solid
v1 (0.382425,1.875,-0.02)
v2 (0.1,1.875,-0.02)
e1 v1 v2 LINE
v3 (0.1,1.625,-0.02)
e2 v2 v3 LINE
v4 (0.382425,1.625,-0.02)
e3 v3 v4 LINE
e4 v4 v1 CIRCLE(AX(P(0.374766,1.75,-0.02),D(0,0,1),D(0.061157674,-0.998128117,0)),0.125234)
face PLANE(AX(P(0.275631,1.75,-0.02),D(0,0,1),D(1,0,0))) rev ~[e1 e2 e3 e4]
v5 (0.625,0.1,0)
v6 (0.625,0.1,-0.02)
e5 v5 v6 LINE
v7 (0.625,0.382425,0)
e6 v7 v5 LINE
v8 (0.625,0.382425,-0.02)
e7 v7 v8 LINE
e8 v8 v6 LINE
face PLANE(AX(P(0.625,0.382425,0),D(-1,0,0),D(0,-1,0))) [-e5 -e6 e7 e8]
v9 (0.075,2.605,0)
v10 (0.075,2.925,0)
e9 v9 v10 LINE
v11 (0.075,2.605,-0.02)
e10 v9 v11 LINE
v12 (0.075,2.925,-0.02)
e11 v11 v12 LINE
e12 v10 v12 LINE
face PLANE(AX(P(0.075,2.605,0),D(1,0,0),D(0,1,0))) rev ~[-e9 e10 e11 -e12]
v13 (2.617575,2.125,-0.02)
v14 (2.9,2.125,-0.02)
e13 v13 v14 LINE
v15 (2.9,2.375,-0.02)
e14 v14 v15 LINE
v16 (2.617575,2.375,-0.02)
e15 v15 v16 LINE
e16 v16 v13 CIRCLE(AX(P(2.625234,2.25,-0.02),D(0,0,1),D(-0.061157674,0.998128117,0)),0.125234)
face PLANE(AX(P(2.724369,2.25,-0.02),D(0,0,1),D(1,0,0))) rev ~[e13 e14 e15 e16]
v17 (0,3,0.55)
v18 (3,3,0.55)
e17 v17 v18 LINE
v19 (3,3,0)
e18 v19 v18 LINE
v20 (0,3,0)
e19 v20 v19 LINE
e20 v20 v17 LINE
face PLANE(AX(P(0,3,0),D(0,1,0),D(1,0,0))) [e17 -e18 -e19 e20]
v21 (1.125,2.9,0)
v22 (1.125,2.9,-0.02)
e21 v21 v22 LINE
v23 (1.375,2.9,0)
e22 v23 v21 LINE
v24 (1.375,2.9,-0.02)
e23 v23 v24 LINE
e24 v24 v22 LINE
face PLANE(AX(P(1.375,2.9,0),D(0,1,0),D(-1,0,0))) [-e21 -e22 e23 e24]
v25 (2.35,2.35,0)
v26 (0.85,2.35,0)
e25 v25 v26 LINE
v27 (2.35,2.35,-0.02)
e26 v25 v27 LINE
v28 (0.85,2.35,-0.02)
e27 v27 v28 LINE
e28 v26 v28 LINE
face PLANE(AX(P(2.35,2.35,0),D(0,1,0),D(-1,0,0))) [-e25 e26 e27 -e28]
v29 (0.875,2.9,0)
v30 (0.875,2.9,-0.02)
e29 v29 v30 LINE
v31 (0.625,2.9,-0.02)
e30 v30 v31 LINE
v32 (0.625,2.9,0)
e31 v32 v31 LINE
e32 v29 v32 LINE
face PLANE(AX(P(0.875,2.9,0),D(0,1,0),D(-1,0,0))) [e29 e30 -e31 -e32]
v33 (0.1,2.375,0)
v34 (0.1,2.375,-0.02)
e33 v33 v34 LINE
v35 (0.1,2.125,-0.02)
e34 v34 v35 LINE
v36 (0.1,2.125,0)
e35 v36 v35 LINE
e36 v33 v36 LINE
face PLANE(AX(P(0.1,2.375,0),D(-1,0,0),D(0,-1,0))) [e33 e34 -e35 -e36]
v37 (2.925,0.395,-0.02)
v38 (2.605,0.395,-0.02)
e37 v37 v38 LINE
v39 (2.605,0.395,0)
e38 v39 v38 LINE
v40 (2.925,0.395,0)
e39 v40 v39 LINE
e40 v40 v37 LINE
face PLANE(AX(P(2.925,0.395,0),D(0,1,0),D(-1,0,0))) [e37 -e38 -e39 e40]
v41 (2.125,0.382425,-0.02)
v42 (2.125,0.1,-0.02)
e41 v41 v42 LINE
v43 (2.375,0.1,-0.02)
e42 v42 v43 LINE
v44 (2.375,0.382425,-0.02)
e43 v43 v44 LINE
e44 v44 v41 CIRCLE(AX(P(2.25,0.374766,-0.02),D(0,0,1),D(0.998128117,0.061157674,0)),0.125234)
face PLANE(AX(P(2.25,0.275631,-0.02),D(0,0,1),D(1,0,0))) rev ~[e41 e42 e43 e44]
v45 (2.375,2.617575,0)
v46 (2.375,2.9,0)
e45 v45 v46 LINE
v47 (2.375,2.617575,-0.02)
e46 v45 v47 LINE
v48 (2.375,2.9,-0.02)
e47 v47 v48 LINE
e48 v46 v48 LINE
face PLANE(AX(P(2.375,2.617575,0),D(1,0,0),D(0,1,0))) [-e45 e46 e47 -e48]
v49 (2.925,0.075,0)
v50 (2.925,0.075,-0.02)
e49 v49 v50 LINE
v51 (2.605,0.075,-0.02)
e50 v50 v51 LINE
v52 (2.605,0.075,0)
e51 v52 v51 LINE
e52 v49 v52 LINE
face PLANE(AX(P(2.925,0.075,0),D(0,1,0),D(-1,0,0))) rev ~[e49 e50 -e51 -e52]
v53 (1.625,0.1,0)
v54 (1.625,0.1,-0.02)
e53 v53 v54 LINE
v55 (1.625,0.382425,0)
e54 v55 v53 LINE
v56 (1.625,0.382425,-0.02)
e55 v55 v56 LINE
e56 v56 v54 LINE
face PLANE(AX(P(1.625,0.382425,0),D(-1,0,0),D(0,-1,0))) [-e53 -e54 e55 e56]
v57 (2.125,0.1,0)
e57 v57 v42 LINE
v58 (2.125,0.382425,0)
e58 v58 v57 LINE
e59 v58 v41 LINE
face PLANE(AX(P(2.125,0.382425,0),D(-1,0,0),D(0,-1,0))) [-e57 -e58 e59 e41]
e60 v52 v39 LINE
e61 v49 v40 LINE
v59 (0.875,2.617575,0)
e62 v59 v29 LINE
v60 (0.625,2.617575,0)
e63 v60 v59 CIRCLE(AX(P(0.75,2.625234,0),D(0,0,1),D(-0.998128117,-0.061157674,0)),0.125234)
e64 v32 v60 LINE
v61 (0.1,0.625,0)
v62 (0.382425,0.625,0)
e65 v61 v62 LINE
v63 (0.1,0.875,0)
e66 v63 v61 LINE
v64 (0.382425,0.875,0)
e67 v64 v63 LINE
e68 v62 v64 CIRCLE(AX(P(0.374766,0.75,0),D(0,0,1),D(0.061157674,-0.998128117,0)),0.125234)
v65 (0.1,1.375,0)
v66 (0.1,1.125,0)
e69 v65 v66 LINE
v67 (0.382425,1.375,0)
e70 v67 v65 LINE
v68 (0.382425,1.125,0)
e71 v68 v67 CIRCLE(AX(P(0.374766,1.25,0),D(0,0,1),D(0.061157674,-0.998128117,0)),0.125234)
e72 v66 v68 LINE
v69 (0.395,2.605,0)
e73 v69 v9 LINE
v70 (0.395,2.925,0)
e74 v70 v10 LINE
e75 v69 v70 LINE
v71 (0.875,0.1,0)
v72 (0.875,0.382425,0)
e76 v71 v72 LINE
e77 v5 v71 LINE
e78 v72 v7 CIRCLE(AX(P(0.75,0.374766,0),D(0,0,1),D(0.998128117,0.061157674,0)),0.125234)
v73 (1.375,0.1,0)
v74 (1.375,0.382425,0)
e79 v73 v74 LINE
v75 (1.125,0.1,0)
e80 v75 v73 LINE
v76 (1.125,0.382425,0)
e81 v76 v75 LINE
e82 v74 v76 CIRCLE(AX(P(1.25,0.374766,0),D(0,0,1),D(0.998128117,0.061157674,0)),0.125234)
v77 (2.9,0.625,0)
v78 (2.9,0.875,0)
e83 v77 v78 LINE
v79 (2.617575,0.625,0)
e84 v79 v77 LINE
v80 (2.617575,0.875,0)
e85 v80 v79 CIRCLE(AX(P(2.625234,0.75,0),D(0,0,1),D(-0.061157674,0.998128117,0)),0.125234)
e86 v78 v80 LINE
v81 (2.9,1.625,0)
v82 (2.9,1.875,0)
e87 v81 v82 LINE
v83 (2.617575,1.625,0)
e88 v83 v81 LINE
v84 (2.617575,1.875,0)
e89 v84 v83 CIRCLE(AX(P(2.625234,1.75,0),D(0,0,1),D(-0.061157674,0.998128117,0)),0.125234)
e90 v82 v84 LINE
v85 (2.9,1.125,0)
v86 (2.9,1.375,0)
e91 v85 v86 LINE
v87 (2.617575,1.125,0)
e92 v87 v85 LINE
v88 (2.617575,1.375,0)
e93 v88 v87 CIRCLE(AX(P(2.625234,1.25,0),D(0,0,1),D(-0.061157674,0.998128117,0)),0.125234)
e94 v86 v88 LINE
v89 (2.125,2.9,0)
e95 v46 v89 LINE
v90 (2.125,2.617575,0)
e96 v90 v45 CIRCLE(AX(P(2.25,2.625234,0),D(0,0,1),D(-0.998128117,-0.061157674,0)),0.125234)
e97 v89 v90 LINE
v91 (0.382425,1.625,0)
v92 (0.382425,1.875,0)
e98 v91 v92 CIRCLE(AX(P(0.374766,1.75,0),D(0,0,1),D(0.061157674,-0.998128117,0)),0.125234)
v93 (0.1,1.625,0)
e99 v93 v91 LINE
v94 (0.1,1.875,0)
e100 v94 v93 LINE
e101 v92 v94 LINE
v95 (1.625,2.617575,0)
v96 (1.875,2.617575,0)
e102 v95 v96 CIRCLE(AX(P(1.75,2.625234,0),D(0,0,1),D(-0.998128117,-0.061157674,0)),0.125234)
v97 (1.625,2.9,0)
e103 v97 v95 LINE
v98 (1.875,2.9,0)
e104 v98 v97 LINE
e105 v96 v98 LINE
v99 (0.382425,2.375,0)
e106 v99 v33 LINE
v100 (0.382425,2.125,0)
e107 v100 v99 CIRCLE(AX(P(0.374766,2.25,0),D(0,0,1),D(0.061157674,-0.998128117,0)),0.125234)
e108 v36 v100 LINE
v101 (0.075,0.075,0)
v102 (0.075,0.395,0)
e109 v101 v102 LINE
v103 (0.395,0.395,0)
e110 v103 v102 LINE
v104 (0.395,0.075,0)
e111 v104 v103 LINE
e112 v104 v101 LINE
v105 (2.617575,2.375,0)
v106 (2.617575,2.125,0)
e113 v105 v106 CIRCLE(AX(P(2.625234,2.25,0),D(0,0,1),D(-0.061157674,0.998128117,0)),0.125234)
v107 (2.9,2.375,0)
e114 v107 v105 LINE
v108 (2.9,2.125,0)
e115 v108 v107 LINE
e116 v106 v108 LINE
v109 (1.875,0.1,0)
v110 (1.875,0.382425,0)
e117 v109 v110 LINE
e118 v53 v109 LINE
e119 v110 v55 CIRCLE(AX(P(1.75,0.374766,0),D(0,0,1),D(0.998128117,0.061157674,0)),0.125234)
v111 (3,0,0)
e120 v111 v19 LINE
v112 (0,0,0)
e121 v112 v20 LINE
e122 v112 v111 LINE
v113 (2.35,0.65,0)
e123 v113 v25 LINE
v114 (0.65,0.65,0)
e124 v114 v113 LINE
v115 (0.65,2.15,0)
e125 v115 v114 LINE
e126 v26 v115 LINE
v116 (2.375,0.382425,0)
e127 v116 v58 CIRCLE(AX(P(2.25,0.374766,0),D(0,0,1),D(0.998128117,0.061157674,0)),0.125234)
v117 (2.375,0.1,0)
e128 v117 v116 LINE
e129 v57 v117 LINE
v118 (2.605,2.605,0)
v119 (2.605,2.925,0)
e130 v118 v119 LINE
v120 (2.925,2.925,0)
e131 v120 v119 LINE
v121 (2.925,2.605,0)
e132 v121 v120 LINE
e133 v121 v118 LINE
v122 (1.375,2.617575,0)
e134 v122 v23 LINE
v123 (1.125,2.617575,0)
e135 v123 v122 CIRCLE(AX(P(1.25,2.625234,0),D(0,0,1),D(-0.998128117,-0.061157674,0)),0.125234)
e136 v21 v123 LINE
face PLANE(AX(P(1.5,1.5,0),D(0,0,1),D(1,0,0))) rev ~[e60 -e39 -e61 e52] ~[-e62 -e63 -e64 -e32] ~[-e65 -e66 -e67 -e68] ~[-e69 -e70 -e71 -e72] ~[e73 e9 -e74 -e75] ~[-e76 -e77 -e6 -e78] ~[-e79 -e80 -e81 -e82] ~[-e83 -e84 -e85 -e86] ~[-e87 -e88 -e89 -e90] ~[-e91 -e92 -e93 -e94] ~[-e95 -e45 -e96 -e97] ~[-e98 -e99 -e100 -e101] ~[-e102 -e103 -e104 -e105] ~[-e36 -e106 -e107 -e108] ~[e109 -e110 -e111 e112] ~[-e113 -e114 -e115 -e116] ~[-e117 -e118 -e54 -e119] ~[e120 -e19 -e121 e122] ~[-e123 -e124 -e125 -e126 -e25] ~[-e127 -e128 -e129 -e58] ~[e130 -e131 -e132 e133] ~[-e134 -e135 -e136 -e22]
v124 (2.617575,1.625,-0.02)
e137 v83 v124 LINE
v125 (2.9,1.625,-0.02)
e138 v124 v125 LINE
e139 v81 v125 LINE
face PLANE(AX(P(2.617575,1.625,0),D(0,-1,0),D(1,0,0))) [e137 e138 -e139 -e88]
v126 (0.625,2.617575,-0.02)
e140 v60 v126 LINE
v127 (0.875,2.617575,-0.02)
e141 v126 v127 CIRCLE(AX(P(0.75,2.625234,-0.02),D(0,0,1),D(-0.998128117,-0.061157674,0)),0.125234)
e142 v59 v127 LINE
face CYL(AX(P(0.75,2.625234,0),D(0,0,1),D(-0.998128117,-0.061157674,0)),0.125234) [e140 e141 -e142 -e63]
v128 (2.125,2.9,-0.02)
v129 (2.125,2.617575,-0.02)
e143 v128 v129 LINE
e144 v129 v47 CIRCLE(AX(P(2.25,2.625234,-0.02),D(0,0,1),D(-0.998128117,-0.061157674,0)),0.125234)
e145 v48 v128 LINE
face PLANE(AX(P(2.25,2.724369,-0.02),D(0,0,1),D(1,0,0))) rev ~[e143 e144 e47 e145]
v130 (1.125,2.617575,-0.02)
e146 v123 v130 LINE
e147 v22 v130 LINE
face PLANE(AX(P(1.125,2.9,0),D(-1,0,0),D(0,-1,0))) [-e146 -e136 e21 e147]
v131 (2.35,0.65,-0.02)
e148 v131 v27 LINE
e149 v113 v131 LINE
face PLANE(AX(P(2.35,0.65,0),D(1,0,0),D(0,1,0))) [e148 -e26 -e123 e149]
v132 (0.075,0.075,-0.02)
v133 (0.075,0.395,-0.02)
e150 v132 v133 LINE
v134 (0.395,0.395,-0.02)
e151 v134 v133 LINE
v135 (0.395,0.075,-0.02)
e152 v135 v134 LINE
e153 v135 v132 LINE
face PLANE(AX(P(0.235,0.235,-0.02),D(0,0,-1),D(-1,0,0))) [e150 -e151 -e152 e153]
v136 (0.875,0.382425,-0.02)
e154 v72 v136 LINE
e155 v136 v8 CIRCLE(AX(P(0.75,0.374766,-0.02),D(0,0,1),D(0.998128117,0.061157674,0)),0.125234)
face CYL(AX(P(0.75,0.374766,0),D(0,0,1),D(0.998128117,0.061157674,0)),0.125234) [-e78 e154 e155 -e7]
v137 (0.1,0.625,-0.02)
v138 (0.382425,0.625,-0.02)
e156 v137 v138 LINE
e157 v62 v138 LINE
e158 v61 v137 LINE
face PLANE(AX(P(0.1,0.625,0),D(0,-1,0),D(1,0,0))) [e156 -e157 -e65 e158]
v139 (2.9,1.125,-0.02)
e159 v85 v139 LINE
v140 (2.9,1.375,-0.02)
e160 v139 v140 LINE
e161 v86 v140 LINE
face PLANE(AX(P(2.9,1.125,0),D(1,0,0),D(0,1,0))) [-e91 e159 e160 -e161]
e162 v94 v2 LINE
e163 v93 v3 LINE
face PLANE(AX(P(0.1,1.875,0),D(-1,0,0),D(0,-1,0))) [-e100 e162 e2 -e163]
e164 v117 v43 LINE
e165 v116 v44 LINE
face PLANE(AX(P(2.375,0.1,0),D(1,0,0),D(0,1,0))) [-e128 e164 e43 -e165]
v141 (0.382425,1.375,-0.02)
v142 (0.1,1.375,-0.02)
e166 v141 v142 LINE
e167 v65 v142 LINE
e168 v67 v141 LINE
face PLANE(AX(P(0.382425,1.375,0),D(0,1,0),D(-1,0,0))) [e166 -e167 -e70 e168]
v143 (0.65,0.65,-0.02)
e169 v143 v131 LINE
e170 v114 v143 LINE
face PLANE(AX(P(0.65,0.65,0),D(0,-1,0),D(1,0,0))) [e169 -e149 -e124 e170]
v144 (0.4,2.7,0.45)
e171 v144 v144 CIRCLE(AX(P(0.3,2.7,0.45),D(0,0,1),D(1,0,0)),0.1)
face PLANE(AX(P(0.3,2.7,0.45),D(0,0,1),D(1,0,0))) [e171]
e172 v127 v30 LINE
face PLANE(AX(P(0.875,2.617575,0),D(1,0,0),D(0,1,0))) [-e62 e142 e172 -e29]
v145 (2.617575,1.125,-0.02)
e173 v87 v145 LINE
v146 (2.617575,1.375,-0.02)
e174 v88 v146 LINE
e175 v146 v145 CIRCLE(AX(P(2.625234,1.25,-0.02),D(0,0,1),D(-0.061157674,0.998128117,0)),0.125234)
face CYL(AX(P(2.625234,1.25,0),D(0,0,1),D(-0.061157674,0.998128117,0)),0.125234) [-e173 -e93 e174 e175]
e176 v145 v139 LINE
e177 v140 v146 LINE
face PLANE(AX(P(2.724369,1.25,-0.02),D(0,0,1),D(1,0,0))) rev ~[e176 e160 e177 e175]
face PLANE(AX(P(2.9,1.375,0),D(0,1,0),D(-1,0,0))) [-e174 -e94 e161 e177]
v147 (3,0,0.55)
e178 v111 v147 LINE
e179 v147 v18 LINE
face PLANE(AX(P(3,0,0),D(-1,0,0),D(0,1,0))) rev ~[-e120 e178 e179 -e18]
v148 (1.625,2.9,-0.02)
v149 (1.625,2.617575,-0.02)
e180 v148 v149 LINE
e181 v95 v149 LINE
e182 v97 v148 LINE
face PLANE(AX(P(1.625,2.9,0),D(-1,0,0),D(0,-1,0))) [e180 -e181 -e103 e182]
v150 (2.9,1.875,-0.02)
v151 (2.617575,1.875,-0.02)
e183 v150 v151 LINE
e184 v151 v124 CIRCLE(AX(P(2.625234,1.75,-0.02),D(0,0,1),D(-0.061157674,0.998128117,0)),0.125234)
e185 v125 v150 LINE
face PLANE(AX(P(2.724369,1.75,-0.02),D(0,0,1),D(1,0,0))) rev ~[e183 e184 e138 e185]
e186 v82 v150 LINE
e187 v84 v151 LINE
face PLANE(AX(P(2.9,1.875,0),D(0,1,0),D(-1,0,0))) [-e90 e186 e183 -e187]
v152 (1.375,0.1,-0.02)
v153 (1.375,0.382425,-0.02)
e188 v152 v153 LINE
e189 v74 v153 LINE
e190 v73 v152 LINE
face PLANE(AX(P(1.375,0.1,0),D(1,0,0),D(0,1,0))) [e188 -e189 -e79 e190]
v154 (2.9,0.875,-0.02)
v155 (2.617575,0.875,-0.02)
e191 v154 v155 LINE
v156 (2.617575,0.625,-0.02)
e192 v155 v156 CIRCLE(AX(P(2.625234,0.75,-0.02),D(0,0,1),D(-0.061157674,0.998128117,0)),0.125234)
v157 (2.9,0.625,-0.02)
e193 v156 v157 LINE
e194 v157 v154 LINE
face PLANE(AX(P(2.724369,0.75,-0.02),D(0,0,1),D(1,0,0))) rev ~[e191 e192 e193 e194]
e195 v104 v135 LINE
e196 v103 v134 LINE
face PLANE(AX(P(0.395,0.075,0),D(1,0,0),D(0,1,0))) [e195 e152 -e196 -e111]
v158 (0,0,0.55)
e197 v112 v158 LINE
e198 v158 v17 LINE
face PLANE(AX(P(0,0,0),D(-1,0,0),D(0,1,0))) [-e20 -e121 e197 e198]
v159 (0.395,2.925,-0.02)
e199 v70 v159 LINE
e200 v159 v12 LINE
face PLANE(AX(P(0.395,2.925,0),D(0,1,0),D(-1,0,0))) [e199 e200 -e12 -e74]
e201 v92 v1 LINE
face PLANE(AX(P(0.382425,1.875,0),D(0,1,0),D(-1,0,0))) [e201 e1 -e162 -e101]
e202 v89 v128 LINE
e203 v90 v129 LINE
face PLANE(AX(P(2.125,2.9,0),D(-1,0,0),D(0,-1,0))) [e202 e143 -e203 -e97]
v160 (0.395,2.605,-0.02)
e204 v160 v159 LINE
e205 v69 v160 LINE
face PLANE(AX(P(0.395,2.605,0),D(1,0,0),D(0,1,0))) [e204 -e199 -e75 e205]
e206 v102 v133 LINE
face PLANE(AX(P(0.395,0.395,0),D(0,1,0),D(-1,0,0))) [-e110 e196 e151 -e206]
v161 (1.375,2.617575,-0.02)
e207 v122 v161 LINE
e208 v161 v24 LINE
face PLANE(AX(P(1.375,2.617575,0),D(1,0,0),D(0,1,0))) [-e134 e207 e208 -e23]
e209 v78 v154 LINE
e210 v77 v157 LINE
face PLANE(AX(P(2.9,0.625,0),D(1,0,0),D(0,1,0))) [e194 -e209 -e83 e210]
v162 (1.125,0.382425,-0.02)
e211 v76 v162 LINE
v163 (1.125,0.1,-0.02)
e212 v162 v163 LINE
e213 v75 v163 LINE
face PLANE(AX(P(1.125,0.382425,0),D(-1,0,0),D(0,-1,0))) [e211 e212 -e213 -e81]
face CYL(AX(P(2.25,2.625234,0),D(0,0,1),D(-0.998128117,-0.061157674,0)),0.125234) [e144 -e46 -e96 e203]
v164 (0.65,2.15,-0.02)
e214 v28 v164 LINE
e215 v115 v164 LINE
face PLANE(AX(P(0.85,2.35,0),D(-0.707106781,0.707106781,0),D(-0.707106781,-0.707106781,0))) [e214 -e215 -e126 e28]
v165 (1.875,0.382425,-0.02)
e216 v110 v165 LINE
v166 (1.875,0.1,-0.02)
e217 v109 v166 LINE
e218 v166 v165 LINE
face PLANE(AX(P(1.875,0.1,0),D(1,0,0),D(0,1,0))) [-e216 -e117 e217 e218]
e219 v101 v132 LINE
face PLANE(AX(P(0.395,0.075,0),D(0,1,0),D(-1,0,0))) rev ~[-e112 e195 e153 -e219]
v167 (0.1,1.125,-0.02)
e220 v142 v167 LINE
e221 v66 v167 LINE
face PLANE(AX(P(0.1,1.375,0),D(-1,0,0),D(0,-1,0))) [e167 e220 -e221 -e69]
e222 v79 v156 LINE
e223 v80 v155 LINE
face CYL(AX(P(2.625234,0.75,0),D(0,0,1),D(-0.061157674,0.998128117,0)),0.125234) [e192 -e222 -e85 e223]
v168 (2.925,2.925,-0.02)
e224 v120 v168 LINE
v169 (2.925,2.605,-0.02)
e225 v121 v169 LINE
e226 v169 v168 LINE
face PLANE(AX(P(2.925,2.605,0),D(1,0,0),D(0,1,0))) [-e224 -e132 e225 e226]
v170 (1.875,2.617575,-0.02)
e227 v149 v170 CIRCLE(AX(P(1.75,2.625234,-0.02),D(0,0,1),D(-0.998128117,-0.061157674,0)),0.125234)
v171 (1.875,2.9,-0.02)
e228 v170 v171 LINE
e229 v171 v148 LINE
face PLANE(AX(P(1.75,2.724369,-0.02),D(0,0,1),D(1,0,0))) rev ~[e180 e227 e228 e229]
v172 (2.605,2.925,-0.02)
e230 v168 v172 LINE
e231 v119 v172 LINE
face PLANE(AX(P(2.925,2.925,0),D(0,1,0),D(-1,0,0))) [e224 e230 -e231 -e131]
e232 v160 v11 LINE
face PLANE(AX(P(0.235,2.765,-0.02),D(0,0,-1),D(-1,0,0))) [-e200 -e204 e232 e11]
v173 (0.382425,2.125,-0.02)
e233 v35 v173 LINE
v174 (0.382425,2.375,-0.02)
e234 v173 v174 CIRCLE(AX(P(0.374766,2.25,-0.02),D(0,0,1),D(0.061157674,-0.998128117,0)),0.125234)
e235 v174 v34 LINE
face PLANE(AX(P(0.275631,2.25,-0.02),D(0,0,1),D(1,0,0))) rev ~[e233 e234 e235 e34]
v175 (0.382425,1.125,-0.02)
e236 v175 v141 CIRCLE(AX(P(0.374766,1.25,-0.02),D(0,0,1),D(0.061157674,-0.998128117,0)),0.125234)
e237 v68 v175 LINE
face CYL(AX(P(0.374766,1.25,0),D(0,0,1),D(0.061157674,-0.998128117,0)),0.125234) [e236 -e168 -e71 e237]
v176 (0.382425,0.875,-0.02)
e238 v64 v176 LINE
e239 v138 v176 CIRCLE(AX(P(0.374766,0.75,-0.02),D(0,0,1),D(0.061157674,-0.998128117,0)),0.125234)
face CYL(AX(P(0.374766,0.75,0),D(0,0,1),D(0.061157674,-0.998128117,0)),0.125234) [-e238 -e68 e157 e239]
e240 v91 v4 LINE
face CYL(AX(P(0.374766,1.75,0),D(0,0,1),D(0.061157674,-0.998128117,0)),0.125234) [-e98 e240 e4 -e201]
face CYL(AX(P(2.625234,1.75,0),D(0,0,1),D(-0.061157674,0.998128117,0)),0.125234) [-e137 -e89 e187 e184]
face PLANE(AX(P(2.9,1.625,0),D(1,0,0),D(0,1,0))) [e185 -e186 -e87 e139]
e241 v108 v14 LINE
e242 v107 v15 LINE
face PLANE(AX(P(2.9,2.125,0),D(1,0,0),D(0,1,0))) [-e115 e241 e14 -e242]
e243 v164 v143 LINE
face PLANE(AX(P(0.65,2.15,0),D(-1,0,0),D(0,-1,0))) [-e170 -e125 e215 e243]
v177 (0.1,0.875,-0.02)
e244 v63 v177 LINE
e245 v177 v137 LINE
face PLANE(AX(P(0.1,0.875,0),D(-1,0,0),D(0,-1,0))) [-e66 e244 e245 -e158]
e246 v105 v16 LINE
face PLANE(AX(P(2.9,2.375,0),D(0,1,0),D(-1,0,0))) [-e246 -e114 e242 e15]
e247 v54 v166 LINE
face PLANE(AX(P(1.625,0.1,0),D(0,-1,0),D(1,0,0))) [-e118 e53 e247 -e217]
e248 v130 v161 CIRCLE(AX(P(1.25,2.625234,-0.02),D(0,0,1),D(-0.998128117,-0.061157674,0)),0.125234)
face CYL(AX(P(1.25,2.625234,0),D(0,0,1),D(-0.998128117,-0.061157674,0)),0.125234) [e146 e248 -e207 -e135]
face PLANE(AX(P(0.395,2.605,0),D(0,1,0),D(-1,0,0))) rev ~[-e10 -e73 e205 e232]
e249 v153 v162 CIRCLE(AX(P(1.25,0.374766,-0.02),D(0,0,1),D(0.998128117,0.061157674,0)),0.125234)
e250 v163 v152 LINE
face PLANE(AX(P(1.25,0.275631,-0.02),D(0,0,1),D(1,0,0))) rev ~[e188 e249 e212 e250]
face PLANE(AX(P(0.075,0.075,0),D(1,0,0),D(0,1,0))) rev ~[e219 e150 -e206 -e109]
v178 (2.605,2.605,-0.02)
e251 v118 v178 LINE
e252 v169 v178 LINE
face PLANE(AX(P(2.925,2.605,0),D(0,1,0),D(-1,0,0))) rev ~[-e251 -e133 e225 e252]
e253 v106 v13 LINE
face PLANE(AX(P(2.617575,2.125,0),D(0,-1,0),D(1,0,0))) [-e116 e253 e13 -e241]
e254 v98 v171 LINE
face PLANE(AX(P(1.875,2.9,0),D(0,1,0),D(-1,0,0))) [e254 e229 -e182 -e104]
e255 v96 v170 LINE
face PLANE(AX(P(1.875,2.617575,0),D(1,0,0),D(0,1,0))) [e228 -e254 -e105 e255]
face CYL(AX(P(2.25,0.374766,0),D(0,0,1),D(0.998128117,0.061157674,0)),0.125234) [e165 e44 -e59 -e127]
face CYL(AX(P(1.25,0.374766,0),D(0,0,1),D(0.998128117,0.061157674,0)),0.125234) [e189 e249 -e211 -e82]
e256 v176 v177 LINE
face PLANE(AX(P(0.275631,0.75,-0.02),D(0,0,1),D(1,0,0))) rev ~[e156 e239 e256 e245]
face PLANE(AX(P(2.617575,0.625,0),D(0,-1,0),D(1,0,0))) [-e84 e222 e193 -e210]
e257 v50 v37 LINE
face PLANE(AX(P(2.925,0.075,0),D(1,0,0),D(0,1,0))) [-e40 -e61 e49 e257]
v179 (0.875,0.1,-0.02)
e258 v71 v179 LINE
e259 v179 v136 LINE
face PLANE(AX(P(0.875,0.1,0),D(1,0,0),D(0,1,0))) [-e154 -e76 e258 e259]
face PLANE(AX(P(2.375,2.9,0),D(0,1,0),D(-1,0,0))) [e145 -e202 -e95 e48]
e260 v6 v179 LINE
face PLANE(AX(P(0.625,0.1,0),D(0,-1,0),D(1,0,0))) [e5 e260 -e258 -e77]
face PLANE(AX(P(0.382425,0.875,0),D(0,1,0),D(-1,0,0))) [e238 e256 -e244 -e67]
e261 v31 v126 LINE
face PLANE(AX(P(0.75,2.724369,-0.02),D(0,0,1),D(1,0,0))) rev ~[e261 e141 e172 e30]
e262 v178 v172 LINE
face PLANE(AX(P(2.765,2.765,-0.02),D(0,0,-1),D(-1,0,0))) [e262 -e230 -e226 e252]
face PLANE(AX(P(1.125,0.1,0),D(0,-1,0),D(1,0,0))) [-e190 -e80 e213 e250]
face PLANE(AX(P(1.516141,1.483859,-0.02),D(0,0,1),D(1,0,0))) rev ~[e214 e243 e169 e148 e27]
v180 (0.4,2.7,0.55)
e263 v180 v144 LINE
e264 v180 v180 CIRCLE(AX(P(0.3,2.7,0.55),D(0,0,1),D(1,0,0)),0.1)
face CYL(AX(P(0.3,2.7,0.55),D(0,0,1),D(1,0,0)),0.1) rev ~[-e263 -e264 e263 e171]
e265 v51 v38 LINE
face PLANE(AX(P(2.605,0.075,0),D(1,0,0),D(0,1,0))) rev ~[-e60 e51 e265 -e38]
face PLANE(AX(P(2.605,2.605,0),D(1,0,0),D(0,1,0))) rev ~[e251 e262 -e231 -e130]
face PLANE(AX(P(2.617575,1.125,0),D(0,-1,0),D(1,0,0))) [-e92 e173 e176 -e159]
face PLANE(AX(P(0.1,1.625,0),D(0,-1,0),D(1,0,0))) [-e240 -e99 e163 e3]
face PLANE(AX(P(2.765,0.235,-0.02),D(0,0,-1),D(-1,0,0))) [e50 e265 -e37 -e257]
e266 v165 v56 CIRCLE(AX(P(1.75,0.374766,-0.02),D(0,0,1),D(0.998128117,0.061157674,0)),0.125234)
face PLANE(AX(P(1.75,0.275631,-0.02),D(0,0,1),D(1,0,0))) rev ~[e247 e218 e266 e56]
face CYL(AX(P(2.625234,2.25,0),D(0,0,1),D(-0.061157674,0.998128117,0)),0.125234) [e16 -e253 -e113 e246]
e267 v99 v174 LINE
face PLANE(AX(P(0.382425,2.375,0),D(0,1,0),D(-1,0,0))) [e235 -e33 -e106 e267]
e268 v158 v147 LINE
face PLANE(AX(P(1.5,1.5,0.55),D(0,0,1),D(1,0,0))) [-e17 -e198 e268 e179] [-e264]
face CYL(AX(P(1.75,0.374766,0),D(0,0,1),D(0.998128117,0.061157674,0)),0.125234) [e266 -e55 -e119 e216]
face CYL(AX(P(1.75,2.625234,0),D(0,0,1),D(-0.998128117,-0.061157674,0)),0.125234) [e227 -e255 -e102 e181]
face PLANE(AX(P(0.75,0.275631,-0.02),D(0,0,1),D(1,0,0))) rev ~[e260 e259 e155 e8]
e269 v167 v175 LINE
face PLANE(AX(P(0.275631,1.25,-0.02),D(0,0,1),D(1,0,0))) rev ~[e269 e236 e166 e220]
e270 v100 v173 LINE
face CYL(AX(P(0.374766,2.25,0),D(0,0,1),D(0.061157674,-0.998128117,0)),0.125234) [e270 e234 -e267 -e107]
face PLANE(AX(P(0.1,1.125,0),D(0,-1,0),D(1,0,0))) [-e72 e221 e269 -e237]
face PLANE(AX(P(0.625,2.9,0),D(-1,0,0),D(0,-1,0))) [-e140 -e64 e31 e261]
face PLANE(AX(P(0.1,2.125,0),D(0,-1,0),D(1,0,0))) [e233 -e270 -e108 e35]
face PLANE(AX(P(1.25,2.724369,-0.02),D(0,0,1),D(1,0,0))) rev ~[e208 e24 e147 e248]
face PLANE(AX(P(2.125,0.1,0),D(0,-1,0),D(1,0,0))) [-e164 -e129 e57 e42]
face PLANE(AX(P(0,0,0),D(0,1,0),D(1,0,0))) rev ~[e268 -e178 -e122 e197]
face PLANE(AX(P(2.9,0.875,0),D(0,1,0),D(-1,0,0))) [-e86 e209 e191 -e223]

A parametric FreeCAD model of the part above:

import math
import FreeCAD as App
import Part
import Sketcher

doc = App.newDocument("Part")
params = doc.addObject("Spreadsheet::Sheet", "Params")
for row, (alias, value) in enumerate([
    ("sketch1_width", "3 mm"),
    ("pad1_length", "0.55 mm"),
    ("sketch2_diameter", "0.2 mm"),
    ("pocket1_length", "0.1 mm"),
    ("sketch3_width", "1.5 mm"),
    ("sketch3_width2", "1.7 mm"),
    ("sketch3_width3", "0.32 mm"),
    ("sketch3_width4", "0.25 mm"),
    ("pad2_length", "0.02 mm"),
], start=1):
    params.set(f"A{row}", alias)
    params.set(f"B{row}", "=" + value)
    params.setAlias(f"B{row}", alias)

body = doc.addObject("PartDesign::Body", "Body")

sketch1 = doc.addObject("Sketcher::SketchObject", "Sketch")
body.addObject(sketch1)
sketch1.AttachmentSupport = (doc.XY_Plane, [""])
sketch1.MapMode = "FlatFace"
sketch1.addGeometry([
    Part.LineSegment(App.Vector(0, 3, 0), App.Vector(0, 0, 0)),
    Part.LineSegment(App.Vector(0, 0, 0), App.Vector(3, 0, 0)),
    Part.LineSegment(App.Vector(3, 0, 0), App.Vector(3, 3, 0)),
    Part.LineSegment(App.Vector(3, 3, 0), App.Vector(0, 3, 0)),
], False)
sketch1.addConstraint([
    Sketcher.Constraint("Coincident", 0, 2, 1, 1),
    Sketcher.Constraint("Coincident", 1, 2, 2, 1),
    Sketcher.Constraint("Coincident", 2, 2, 3, 1),
    Sketcher.Constraint("Coincident", 3, 2, 0, 1),
    Sketcher.Constraint("Vertical", 0),
    Sketcher.Constraint("Horizontal", 1),
    Sketcher.Constraint("Vertical", 2),
    Sketcher.Constraint("Horizontal", 3),
    Sketcher.Constraint("Coincident", 0, 2, -1, 1),
    Sketcher.Constraint("Equal", 3, 0),
    Sketcher.Constraint("DistanceX", 1, 1, 1, 2, 3.0),
])
sketch1.setExpression("Constraints[10]", "Params.sketch1_width")
pad1 = doc.addObject("PartDesign::Pad", "Pad")
body.addObject(pad1)
pad1.Profile = sketch1
pad1.setExpression("Length", "Params.pad1_length")

sketch2 = doc.addObject("Sketcher::SketchObject", "Sketch001")
body.addObject(sketch2)
sketch2.AttachmentSupport = (doc.XY_Plane, [""])
sketch2.MapMode = "FlatFace"
sketch2.AttachmentOffset = App.Placement(App.Vector(0, 0, 0.55), App.Rotation())
sketch2.addGeometry(Part.Circle(App.Vector(0.3, 2.7, 0), App.Vector(0, 0, 1), 0.1), False)
sketch2.addConstraint([
    Sketcher.Constraint("Diameter", 0, 0.2),
    Sketcher.Constraint("DistanceX", -1, 1, 0, 3, 0.3),
    Sketcher.Constraint("DistanceY", -1, 1, 0, 3, 2.7),
])
sketch2.setExpression("Constraints[0]", "Params.sketch2_diameter")
pocket1 = doc.addObject("PartDesign::Pocket", "Pocket")
body.addObject(pocket1)
pocket1.Profile = sketch2
pocket1.setExpression("Length", "Params.pocket1_length")

sketch3 = doc.addObject("Sketcher::SketchObject", "Sketch002")
body.addObject(sketch3)
sketch3.AttachmentSupport = (doc.XY_Plane, [""])
sketch3.MapMode = "FlatFace"
sketch3.addGeometry([
    Part.LineSegment(App.Vector(2.925, 2.925, 0), App.Vector(2.925, 2.605, 0)),
    Part.LineSegment(App.Vector(2.925, 2.605, 0), App.Vector(2.605, 2.605, 0)),
    Part.LineSegment(App.Vector(2.605, 2.605, 0), App.Vector(2.605, 2.925, 0)),
    Part.LineSegment(App.Vector(2.605, 2.925, 0), App.Vector(2.925, 2.925, 0)),
    Part.LineSegment(App.Vector(0.395, 2.925, 0), App.Vector(0.395, 2.605, 0)),
    Part.LineSegment(App.Vector(0.395, 2.605, 0), App.Vector(0.075, 2.605, 0)),
    Part.LineSegment(App.Vector(0.075, 2.605, 0), App.Vector(0.075, 2.925, 0)),
    Part.LineSegment(App.Vector(0.075, 2.925, 0), App.Vector(0.395, 2.925, 0)),
    Part.LineSegment(App.Vector(0.395, 0.395, 0), App.Vector(0.395, 0.075, 0)),
    Part.LineSegment(App.Vector(0.395, 0.075, 0), App.Vector(0.075, 0.075, 0)),
    Part.LineSegment(App.Vector(0.075, 0.075, 0), App.Vector(0.075, 0.395, 0)),
    Part.LineSegment(App.Vector(0.075, 0.395, 0), App.Vector(0.395, 0.395, 0)),
    Part.LineSegment(App.Vector(2.925, 0.395, 0), App.Vector(2.925, 0.075, 0)),
    Part.LineSegment(App.Vector(2.925, 0.075, 0), App.Vector(2.605, 0.075, 0)),
    Part.LineSegment(App.Vector(2.605, 0.075, 0), App.Vector(2.605, 0.395, 0)),
    Part.LineSegment(App.Vector(2.605, 0.395, 0), App.Vector(2.925, 0.395, 0)),
    Part.LineSegment(App.Vector(0.65, 2.15, 0), App.Vector(0.85, 2.35, 0)),
    Part.LineSegment(App.Vector(0.85, 2.35, 0), App.Vector(2.35, 2.35, 0)),
    Part.LineSegment(App.Vector(2.35, 2.35, 0), App.Vector(2.35, 0.65, 0)),
    Part.LineSegment(App.Vector(2.35, 0.65, 0), App.Vector(0.65, 0.65, 0)),
    Part.LineSegment(App.Vector(0.65, 0.65, 0), App.Vector(0.65, 2.15, 0)),
    Part.LineSegment(App.Vector(2.125, 2.9, 0), App.Vector(2.375, 2.9, 0)),
    Part.LineSegment(App.Vector(2.375, 2.9, 0), App.Vector(2.375, 2.617575, 0)),
    Part.ArcOfCircle(Part.Circle(App.Vector(2.25, 2.625234, 0), App.Vector(0, 0, 1), 0.125234), math.radians(-176.493735), math.radians(-3.506265)),
    Part.LineSegment(App.Vector(2.125, 2.617575, 0), App.Vector(2.125, 2.9, 0)),
    Part.LineSegment(App.Vector(1.625, 2.9, 0), App.Vector(1.875, 2.9, 0)),
    Part.LineSegment(App.Vector(1.875, 2.9, 0), App.Vector(1.875, 2.617575, 0)),
    Part.ArcOfCircle(Part.Circle(App.Vector(1.75, 2.625234, 0), App.Vector(0, 0, 1), 0.125234), math.radians(-176.493735), math.radians(-3.506265)),
    Part.LineSegment(App.Vector(1.625, 2.617575, 0), App.Vector(1.625, 2.9, 0)),
    Part.LineSegment(App.Vector(1.125, 2.9, 0), App.Vector(1.375, 2.9, 0)),
    Part.LineSegment(App.Vector(1.375, 2.9, 0), App.Vector(1.375, 2.617575, 0)),
    Part.ArcOfCircle(Part.Circle(App.Vector(1.25, 2.625234, 0), App.Vector(0, 0, 1), 0.125234), math.radians(-176.493735), math.radians(-3.506265)),
    Part.LineSegment(App.Vector(1.125, 2.617575, 0), App.Vector(1.125, 2.9, 0)),
    Part.LineSegment(App.Vector(0.625, 2.9, 0), App.Vector(0.875, 2.9, 0)),
    Part.LineSegment(App.Vector(0.875, 2.9, 0), App.Vector(0.875, 2.617575, 0)),
    Part.ArcOfCircle(Part.Circle(App.Vector(0.75, 2.625234, 0), App.Vector(0, 0, 1), 0.125234), math.radians(-176.493735), math.radians(-3.506265)),
    Part.LineSegment(App.Vector(0.625, 2.617575, 0), App.Vector(0.625, 2.9, 0)),
    Part.LineSegment(App.Vector(0.1, 2.125, 0), App.Vector(0.1, 2.375, 0)),
    Part.LineSegment(App.Vector(0.1, 2.375, 0), App.Vector(0.382425, 2.375, 0)),
    Part.ArcOfCircle(Part.Circle(App.Vector(0.374766, 2.25, 0), App.Vector(0, 0, 1), 0.125234), math.radians(-86.493735), math.radians(86.493735)),
    Part.LineSegment(App.Vector(0.382425, 2.125, 0), App.Vector(0.1, 2.125, 0)),
    Part.LineSegment(App.Vector(0.1, 1.625, 0), App.Vector(0.1, 1.875, 0)),
    Part.LineSegment(App.Vector(0.1, 1.875, 0), App.Vector(0.382425, 1.875, 0)),
    Part.ArcOfCircle(Part.Circle(App.Vector(0.374766, 1.75, 0), App.Vector(0, 0, 1), 0.125234), math.radians(-86.493735), math.radians(86.493735)),
    Part.LineSegment(App.Vector(0.382425, 1.625, 0), App.Vector(0.1, 1.625, 0)),
    Part.LineSegment(App.Vector(0.1, 1.125, 0), App.Vector(0.1, 1.375, 0)),
    Part.LineSegment(App.Vector(0.1, 1.375, 0), App.Vector(0.382425, 1.375, 0)),
    Part.ArcOfCircle(Part.Circle(App.Vector(0.374766, 1.25, 0), App.Vector(0, 0, 1), 0.125234), math.radians(-86.493735), math.radians(86.493735)),
    Part.LineSegment(App.Vector(0.382425, 1.125, 0), App.Vector(0.1, 1.125, 0)),
    Part.LineSegment(App.Vector(0.1, 0.625, 0), App.Vector(0.1, 0.875, 0)),
    Part.LineSegment(App.Vector(0.1, 0.875, 0), App.Vector(0.382425, 0.875, 0)),
    Part.ArcOfCircle(Part.Circle(App.Vector(0.374766, 0.75, 0), App.Vector(0, 0, 1), 0.125234), math.radians(-86.493735), math.radians(86.493735)),
    Part.LineSegment(App.Vector(0.382425, 0.625, 0), App.Vector(0.1, 0.625, 0)),
    Part.LineSegment(App.Vector(0.875, 0.1, 0), App.Vector(0.625, 0.1, 0)),
    Part.LineSegment(App.Vector(0.625, 0.1, 0), App.Vector(0.625, 0.382425, 0)),
    Part.ArcOfCircle(Part.Circle(App.Vector(0.75, 0.374766, 0), App.Vector(0, 0, 1), 0.125234), math.radians(3.506265), math.radians(176.493735)),
    Part.LineSegment(App.Vector(0.875, 0.382425, 0), App.Vector(0.875, 0.1, 0)),
    Part.LineSegment(App.Vector(1.375, 0.1, 0), App.Vector(1.125, 0.1, 0)),
    Part.LineSegment(App.Vector(1.125, 0.1, 0), App.Vector(1.125, 0.382425, 0)),
    Part.ArcOfCircle(Part.Circle(App.Vector(1.25, 0.374766, 0), App.Vector(0, 0, 1), 0.125234), math.radians(3.506265), math.radians(176.493735)),
    Part.LineSegment(App.Vector(1.375, 0.382425, 0), App.Vector(1.375, 0.1, 0)),
    Part.LineSegment(App.Vector(1.875, 0.1, 0), App.Vector(1.625, 0.1, 0)),
    Part.LineSegment(App.Vector(1.625, 0.1, 0), App.Vector(1.625, 0.382425, 0)),
    Part.ArcOfCircle(Part.Circle(App.Vector(1.75, 0.374766, 0), App.Vector(0, 0, 1), 0.125234), math.radians(3.506265), math.radians(176.493735)),
    Part.LineSegment(App.Vector(1.875, 0.382425, 0), App.Vector(1.875, 0.1, 0)),
    Part.LineSegment(App.Vector(2.375, 0.1, 0), App.Vector(2.125, 0.1, 0)),
    Part.LineSegment(App.Vector(2.125, 0.1, 0), App.Vector(2.125, 0.382425, 0)),
    Part.ArcOfCircle(Part.Circle(App.Vector(2.25, 0.374766, 0), App.Vector(0, 0, 1), 0.125234), math.radians(3.506265), math.radians(176.493735)),
    Part.LineSegment(App.Vector(2.375, 0.382425, 0), App.Vector(2.375, 0.1, 0)),
    Part.LineSegment(App.Vector(2.9, 0.875, 0), App.Vector(2.9, 0.625, 0)),
    Part.LineSegment(App.Vector(2.9, 0.625, 0), App.Vector(2.617575, 0.625, 0)),
    Part.ArcOfCircle(Part.Circle(App.Vector(2.625234, 0.75, 0), App.Vector(0, 0, 1), 0.125234), math.radians(93.506265), math.radians(266.493735)),
    Part.LineSegment(App.Vector(2.617575, 0.875, 0), App.Vector(2.9, 0.875, 0)),
    Part.LineSegment(App.Vector(2.9, 1.375, 0), App.Vector(2.9, 1.125, 0)),
    Part.LineSegment(App.Vector(2.9, 1.125, 0), App.Vector(2.617575, 1.125, 0)),
    Part.ArcOfCircle(Part.Circle(App.Vector(2.625234, 1.25, 0), App.Vector(0, 0, 1), 0.125234), math.radians(93.506265), math.radians(266.493735)),
    Part.LineSegment(App.Vector(2.617575, 1.375, 0), App.Vector(2.9, 1.375, 0)),
    Part.LineSegment(App.Vector(2.9, 1.875, 0), App.Vector(2.9, 1.625, 0)),
    Part.LineSegment(App.Vector(2.9, 1.625, 0), App.Vector(2.617575, 1.625, 0)),
    Part.ArcOfCircle(Part.Circle(App.Vector(2.625234, 1.75, 0), App.Vector(0, 0, 1), 0.125234), math.radians(93.506265), math.radians(266.493735)),
    Part.LineSegment(App.Vector(2.617575, 1.875, 0), App.Vector(2.9, 1.875, 0)),
    Part.LineSegment(App.Vector(2.9, 2.375, 0), App.Vector(2.9, 2.125, 0)),
    Part.LineSegment(App.Vector(2.9, 2.125, 0), App.Vector(2.617575, 2.125, 0)),
    Part.ArcOfCircle(Part.Circle(App.Vector(2.625234, 2.25, 0), App.Vector(0, 0, 1), 0.125234), math.radians(93.506265), math.radians(266.493735)),
    Part.LineSegment(App.Vector(2.617575, 2.375, 0), App.Vector(2.9, 2.375, 0)),
], False)
sketch3.addConstraint([
    Sketcher.Constraint("Coincident", 0, 2, 1, 1),
    Sketcher.Constraint("Coincident", 1, 2, 2, 1),
    Sketcher.Constraint("Coincident", 2, 2, 3, 1),
    Sketcher.Constraint("Coincident", 3, 2, 0, 1),
    Sketcher.Constraint("Coincident", 4, 2, 5, 1),
    Sketcher.Constraint("Coincident", 5, 2, 6, 1),
    Sketcher.Constraint("Coincident", 6, 2, 7, 1),
    Sketcher.Constraint("Coincident", 7, 2, 4, 1),
    Sketcher.Constraint("Coincident", 8, 2, 9, 1),
    Sketcher.Constraint("Coincident", 9, 2, 10, 1),
    Sketcher.Constraint("Coincident", 10, 2, 11, 1),
    Sketcher.Constraint("Coincident", 11, 2, 8, 1),
    Sketcher.Constraint("Coincident", 12, 2, 13, 1),
    Sketcher.Constraint("Coincident", 13, 2, 14, 1),
    Sketcher.Constraint("Coincident", 14, 2, 15, 1),
    Sketcher.Constraint("Coincident", 15, 2, 12, 1),
    Sketcher.Constraint("Coincident", 16, 2, 17, 1),
    Sketcher.Constraint("Coincident", 17, 2, 18, 1),
    Sketcher.Constraint("Coincident", 18, 2, 19, 1),
    Sketcher.Constraint("Coincident", 19, 2, 20, 1),
    Sketcher.Constraint("Coincident", 20, 2, 16, 1),
    Sketcher.Constraint("Coincident", 21, 2, 22, 1),
    Sketcher.Constraint("Coincident", 22, 2, 23, 2),
    Sketcher.Constraint("Coincident", 23, 1, 24, 1),
    Sketcher.Constraint("Coincident", 24, 2, 21, 1),
    Sketcher.Constraint("Coincident", 25, 2, 26, 1),
    Sketcher.Constraint("Coincident", 26, 2, 27, 2),
    Sketcher.Constraint("Coincident", 27, 1, 28, 1),
    Sketcher.Constraint("Coincident", 28, 2, 25, 1),
    Sketcher.Constraint("Coincident", 29, 2, 30, 1),
    Sketcher.Constraint("Coincident", 30, 2, 31, 2),
    Sketcher.Constraint("Coincident", 31, 1, 32, 1),
    Sketcher.Constraint("Coincident", 32, 2, 29, 1),
    Sketcher.Constraint("Coincident", 33, 2, 34, 1),
    Sketcher.Constraint("Coincident", 34, 2, 35, 2),
    Sketcher.Constraint("Coincident", 35, 1, 36, 1),
    Sketcher.Constraint("Coincident", 36, 2, 33, 1),
    Sketcher.Constraint("Coincident", 37, 2, 38, 1),
    Sketcher.Constraint("Coincident", 38, 2, 39, 2),
    Sketcher.Constraint("Coincident", 39, 1, 40, 1),
    Sketcher.Constraint("Coincident", 40, 2, 37, 1),
    Sketcher.Constraint("Coincident", 41, 2, 42, 1),
    Sketcher.Constraint("Coincident", 42, 2, 43, 2),
    Sketcher.Constraint("Coincident", 43, 1, 44, 1),
    Sketcher.Constraint("Coincident", 44, 2, 41, 1),
    Sketcher.Constraint("Coincident", 45, 2, 46, 1),
    Sketcher.Constraint("Coincident", 46, 2, 47, 2),
    Sketcher.Constraint("Coincident", 47, 1, 48, 1),
    Sketcher.Constraint("Coincident", 48, 2, 45, 1),
    Sketcher.Constraint("Coincident", 49, 2, 50, 1),
    Sketcher.Constraint("Coincident", 50, 2, 51, 2),
    Sketcher.Constraint("Coincident", 51, 1, 52, 1),
    Sketcher.Constraint("Coincident", 52, 2, 49, 1),
    Sketcher.Constraint("Coincident", 53, 2, 54, 1),
    Sketcher.Constraint("Coincident", 54, 2, 55, 2),
    Sketcher.Constraint("Coincident", 55, 1, 56, 1),
    Sketcher.Constraint("Coincident", 56, 2, 53, 1),
    Sketcher.Constraint("Coincident", 57, 2, 58, 1),
    Sketcher.Constraint("Coincident", 58, 2, 59, 2),
    Sketcher.Constraint("Coincident", 59, 1, 60, 1),
    Sketcher.Constraint("Coincident", 60, 2, 57, 1),
    Sketcher.Constraint("Coincident", 61, 2, 62, 1),
    Sketcher.Constraint("Coincident", 62, 2, 63, 2),
    Sketcher.Constraint("Coincident", 63, 1, 64, 1),
    Sketcher.Constraint("Coincident", 64, 2, 61, 1),
    Sketcher.Constraint("Coincident", 65, 2, 66, 1),
    Sketcher.Constraint("Coincident", 66, 2, 67, 2),
    Sketcher.Constraint("Coincident", 67, 1, 68, 1),
    Sketcher.Constraint("Coincident", 68, 2, 65, 1),
    Sketcher.Constraint("Coincident", 69, 2, 70, 1),
    Sketcher.Constraint("Coincident", 70, 2, 71, 2),
    Sketcher.Constraint("Coincident", 71, 1, 72, 1),
    Sketcher.Constraint("Coincident", 72, 2, 69, 1),
    Sketcher.Constraint("Coincident", 73, 2, 74, 1),
    Sketcher.Constraint("Coincident", 74, 2, 75, 2),
    Sketcher.Constraint("Coincident", 75, 1, 76, 1),
    Sketcher.Constraint("Coincident", 76, 2, 73, 1),
    Sketcher.Constraint("Coincident", 77, 2, 78, 1),
    Sketcher.Constraint("Coincident", 78, 2, 79, 2),
    Sketcher.Constraint("Coincident", 79, 1, 80, 1),
    Sketcher.Constraint("Coincident", 80, 2, 77, 1),
    Sketcher.Constraint("Coincident", 81, 2, 82, 1),
    Sketcher.Constraint("Coincident", 82, 2, 83, 2),
    Sketcher.Constraint("Coincident", 83, 1, 84, 1),
    Sketcher.Constraint("Coincident", 84, 2, 81, 1),
    Sketcher.Constraint("Vertical", 0),
    Sketcher.Constraint("Horizontal", 1),
    Sketcher.Constraint("Vertical", 2),
    Sketcher.Constraint("Horizontal", 3),
    Sketcher.Constraint("Vertical", 4),
    Sketcher.Constraint("Horizontal", 5),
    Sketcher.Constraint("Vertical", 6),
    Sketcher.Constraint("Horizontal", 7),
    Sketcher.Constraint("Vertical", 8),
    Sketcher.Constraint("Horizontal", 9),
    Sketcher.Constraint("Vertical", 10),
    Sketcher.Constraint("Horizontal", 11),
    Sketcher.Constraint("Vertical", 12),
    Sketcher.Constraint("Horizontal", 13),
    Sketcher.Constraint("Vertical", 14),
    Sketcher.Constraint("Horizontal", 15),
    Sketcher.Constraint("Horizontal", 17),
    Sketcher.Constraint("Vertical", 18),
    Sketcher.Constraint("Horizontal", 19),
    Sketcher.Constraint("Vertical", 20),
    Sketcher.Constraint("Horizontal", 21),
    Sketcher.Constraint("Vertical", 22),
    Sketcher.Constraint("Vertical", 24),
    Sketcher.Constraint("Horizontal", 25),
    Sketcher.Constraint("Vertical", 26),
    Sketcher.Constraint("Vertical", 28),
    Sketcher.Constraint("Horizontal", 29),
    Sketcher.Constraint("Vertical", 30),
    Sketcher.Constraint("Vertical", 32),
    Sketcher.Constraint("Horizontal", 33),
    Sketcher.Constraint("Vertical", 34),
    Sketcher.Constraint("Vertical", 36),
    Sketcher.Constraint("Vertical", 37),
    Sketcher.Constraint("Horizontal", 38),
    Sketcher.Constraint("Horizontal", 40),
    Sketcher.Constraint("Vertical", 41),
    Sketcher.Constraint("Horizontal", 42),
    Sketcher.Constraint("Horizontal", 44),
    Sketcher.Constraint("Vertical", 45),
    Sketcher.Constraint("Horizontal", 46),
    Sketcher.Constraint("Horizontal", 48),
    Sketcher.Constraint("Vertical", 49),
    Sketcher.Constraint("Horizontal", 50),
    Sketcher.Constraint("Horizontal", 52),
    Sketcher.Constraint("Horizontal", 53),
    Sketcher.Constraint("Vertical", 54),
    Sketcher.Constraint("Vertical", 56),
    Sketcher.Constraint("Horizontal", 57),
    Sketcher.Constraint("Vertical", 58),
    Sketcher.Constraint("Vertical", 60),
    Sketcher.Constraint("Horizontal", 61),
    Sketcher.Constraint("Vertical", 62),
    Sketcher.Constraint("Vertical", 64),
    Sketcher.Constraint("Horizontal", 65),
    Sketcher.Constraint("Vertical", 66),
    Sketcher.Constraint("Vertical", 68),
    Sketcher.Constraint("Vertical", 69),
    Sketcher.Constraint("Horizontal", 70),
    Sketcher.Constraint("Horizontal", 72),
    Sketcher.Constraint("Vertical", 73),
    Sketcher.Constraint("Horizontal", 74),
    Sketcher.Constraint("Horizontal", 76),
    Sketcher.Constraint("Vertical", 77),
    Sketcher.Constraint("Horizontal", 78),
    Sketcher.Constraint("Horizontal", 80),
    Sketcher.Constraint("Vertical", 81),
    Sketcher.Constraint("Horizontal", 82),
    Sketcher.Constraint("Horizontal", 84),
    Sketcher.Constraint("Equal", 23, 27),
    Sketcher.Constraint("Equal", 27, 31),
    Sketcher.Constraint("Equal", 31, 35),
    Sketcher.Constraint("Equal", 35, 39),
    Sketcher.Constraint("Equal", 39, 43),
    Sketcher.Constraint("Equal", 43, 47),
    Sketcher.Constraint("Equal", 47, 51),
    Sketcher.Constraint("Equal", 51, 55),
    Sketcher.Constraint("Equal", 55, 59),
    Sketcher.Constraint("Equal", 59, 63),
    Sketcher.Constraint("Equal", 63, 67),
    Sketcher.Constraint("Equal", 67, 71),
    Sketcher.Constraint("Equal", 71, 75),
    Sketcher.Constraint("Equal", 75, 79),
    Sketcher.Constraint("Equal", 79, 83),
    Sketcher.Constraint("Horizontal", 23, 3, 27, 3),
    Sketcher.Constraint("Horizontal", 27, 3, 31, 3),
    Sketcher.Constraint("Horizontal", 31, 3, 35, 3),
    Sketcher.Constraint("Horizontal", 55, 3, 59, 3),
    Sketcher.Constraint("Horizontal", 59, 3, 63, 3),
    Sketcher.Constraint("Horizontal", 63, 3, 67, 3),
    Sketcher.Constraint("Horizontal", 51, 3, 71, 3),
    Sketcher.Constraint("Horizontal", 47, 3, 75, 3),
    Sketcher.Constraint("Horizontal", 43, 3, 79, 3),
    Sketcher.Constraint("Horizontal", 39, 3, 83, 3),
    Sketcher.Constraint("Horizontal", 1, 2, 4, 2),
    Sketcher.Constraint("Horizontal", 3, 2, 6, 2),
    Sketcher.Constraint("Horizontal", 9, 2, 12, 2),
    Sketcher.Constraint("Horizontal", 11, 2, 14, 2),
    Sketcher.Constraint("Horizontal", 22, 2, 23, 1),
    Sketcher.Constraint("Horizontal", 24, 2, 25, 2),
    Sketcher.Constraint("Horizontal", 23, 1, 26, 2),
    Sketcher.Constraint("Horizontal", 26, 2, 27, 1),
    Sketcher.Constraint("Horizontal", 28, 2, 29, 2),
    Sketcher.Constraint("Horizontal", 27, 1, 30, 2),
    Sketcher.Constraint("Horizontal", 30, 2, 31, 1),
    Sketcher.Constraint("Horizontal", 32, 2, 33, 2),
    Sketcher.Constraint("Horizontal", 31, 1, 34, 2),
    Sketcher.Constraint("Horizontal", 34, 2, 35, 1),
    Sketcher.Constraint("Horizontal", 54, 2, 55, 1),
    Sketcher.Constraint("Horizontal", 56, 2, 57, 2),
    Sketcher.Constraint("Horizontal", 55, 1, 58, 2),
    Sketcher.Constraint("Horizontal", 58, 2, 59, 1),
    Sketcher.Constraint("Horizontal", 60, 2, 61, 2),
    Sketcher.Constraint("Horizontal", 59, 1, 62, 2),
    Sketcher.Constraint("Horizontal", 62, 2, 63, 1),
    Sketcher.Constraint("Horizontal", 64, 2, 65, 2),
    Sketcher.Constraint("Horizontal", 63, 1, 66, 2),
    Sketcher.Constraint("Horizontal", 66, 2, 67, 1),
    Sketcher.Constraint("Horizontal", 52, 2, 69, 2),
    Sketcher.Constraint("Horizontal", 50, 2, 71, 1),
    Sketcher.Constraint("Horizontal", 48, 2, 73, 2),
    Sketcher.Constraint("Horizontal", 46, 2, 75, 1),
    Sketcher.Constraint("Horizontal", 44, 2, 77, 2),
    Sketcher.Constraint("Horizontal", 42, 2, 79, 1),
    Sketcher.Constraint("Horizontal", 40, 2, 81, 2),
    Sketcher.Constraint("Horizontal", 38, 2, 83, 1),
    Sketcher.Constraint("Vertical", 39, 3, 43, 3),
    Sketcher.Constraint("Vertical", 43, 3, 47, 3),
    Sketcher.Constraint("Vertical", 47, 3, 51, 3),
    Sketcher.Constraint("Vertical", 35, 3, 55, 3),
    Sketcher.Constraint("Vertical", 31, 3, 59, 3),
    Sketcher.Constraint("Vertical", 27, 3, 63, 3),
    Sketcher.Constraint("Vertical", 23, 3, 67, 3),
    Sketcher.Constraint("Vertical", 71, 3, 75, 3),
    Sketcher.Constraint("Vertical", 75, 3, 79, 3),
    Sketcher.Constraint("Vertical", 79, 3, 83, 3),
    Sketcher.Constraint("Vertical", 7, 2, 8, 2),
    Sketcher.Constraint("Vertical", 6, 2, 9, 2),
    Sketcher.Constraint("Vertical", 3, 2, 12, 2),
    Sketcher.Constraint("Vertical", 2, 2, 13, 2),
    Sketcher.Constraint("Vertical", 38, 2, 39, 1),
    Sketcher.Constraint("Vertical", 40, 2, 41, 2),
    Sketcher.Constraint("Vertical", 39, 1, 42, 2),
    Sketcher.Constraint("Vertical", 42, 2, 43, 1),
    Sketcher.Constraint("Vertical", 44, 2, 45, 2),
    Sketcher.Constraint("Vertical", 43, 1, 46, 2),
    Sketcher.Constraint("Vertical", 46, 2, 47, 1),
    Sketcher.Constraint("Vertical", 48, 2, 49, 2),
    Sketcher.Constraint("Vertical", 47, 1, 50, 2),
    Sketcher.Constraint("Vertical", 50, 2, 51, 1),
    Sketcher.Constraint("Vertical", 36, 2, 53, 2),
    Sketcher.Constraint("Vertical", 72, 2, 73, 2),
    Sketcher.Constraint("Vertical", 76, 2, 77, 2),
    Sketcher.Constraint("Vertical", 80, 2, 81, 2),
    Sketcher.Constraint("Equal", 3, 5),
    Sketcher.Constraint("Equal", 52, 70),
    Sketcher.Constraint("Equal", 15, 0),
    Sketcher.Constraint("Equal", 6, 8),
    Sketcher.Constraint("Equal", 19, 18),
    Sketcher.Constraint("Equal", 17, 20),
    Sketcher.Constraint("Equal", 84, 22),
    Sketcher.Constraint("Equal", 65, 37),
    Sketcher.Constraint("Equal", 36, 54),
    Sketcher.Constraint("DistanceX", 17, 1, 17, 2, 1.5),
    Sketcher.Constraint("DistanceX", 19, 2, 19, 1, 1.7),
    Sketcher.Constraint("DistanceX", 1, 2, 1, 1, 0.32),
    Sketcher.Constraint("DistanceX", 21, 1, 21, 2, 0.25),
    Sketcher.Constraint("DistanceY", -1, 1, 21, 2, 2.9),
    Sketcher.Constraint("DistanceX", -1, 1, 37, 2, 0.1),
    Sketcher.Constraint("DistanceY", -1, 1, 53, 2, 0.1),
    Sketcher.Constraint("DistanceX", -1, 1, 69, 2, 2.9),
    Sketcher.Constraint("DistanceX", -1, 1, 23, 3, 2.25),
    Sketcher.Constraint("DistanceX", -1, 1, 27, 3, 1.75),
    Sketcher.Constraint("DistanceX", -1, 1, 31, 3, 1.25),
    Sketcher.Constraint("DistanceX", -1, 1, 35, 3, 0.75),
    Sketcher.Constraint("DistanceY", -1, 1, 39, 3, 2.25),
    Sketcher.Constraint("DistanceY", -1, 1, 43, 3, 1.75),
    Sketcher.Constraint("DistanceY", -1, 1, 47, 3, 1.25),
    Sketcher.Constraint("DistanceY", -1, 1, 51, 3, 0.75),
    Sketcher.Constraint("DistanceX", -1, 1, 16, 2, 0.85),
    Sketcher.Constraint("DistanceY", -1, 1, 16, 2, 2.35),
    Sketcher.Constraint("DistanceX", -1, 1, 0, 2, 2.925),
    Sketcher.Constraint("DistanceY", -1, 1, 0, 2, 2.605),
    Sketcher.Constraint("DistanceX", -1, 1, 4, 2, 0.395),
    Sketcher.Constraint("DistanceY", -1, 1, 8, 2, 0.075),
    Sketcher.Constraint("DistanceX", 38, 1, 38, 2, 0.282425),
    Sketcher.Constraint("DistanceY", -1, 1, 23, 3, 2.625234),
])
sketch3.setExpression("Constraints[247]", "Params.sketch3_width")
sketch3.setExpression("Constraints[248]", "Params.sketch3_width2")
sketch3.setExpression("Constraints[249]", "Params.sketch3_width3")
sketch3.setExpression("Constraints[250]", "Params.sketch3_width4")
pad2 = doc.addObject("PartDesign::Pad", "Pad001")
body.addObject(pad2)
pad2.Profile = sketch3
pad2.setExpression("Length", "Params.pad2_length")
pad2.Reversed = True

doc.recompute()
